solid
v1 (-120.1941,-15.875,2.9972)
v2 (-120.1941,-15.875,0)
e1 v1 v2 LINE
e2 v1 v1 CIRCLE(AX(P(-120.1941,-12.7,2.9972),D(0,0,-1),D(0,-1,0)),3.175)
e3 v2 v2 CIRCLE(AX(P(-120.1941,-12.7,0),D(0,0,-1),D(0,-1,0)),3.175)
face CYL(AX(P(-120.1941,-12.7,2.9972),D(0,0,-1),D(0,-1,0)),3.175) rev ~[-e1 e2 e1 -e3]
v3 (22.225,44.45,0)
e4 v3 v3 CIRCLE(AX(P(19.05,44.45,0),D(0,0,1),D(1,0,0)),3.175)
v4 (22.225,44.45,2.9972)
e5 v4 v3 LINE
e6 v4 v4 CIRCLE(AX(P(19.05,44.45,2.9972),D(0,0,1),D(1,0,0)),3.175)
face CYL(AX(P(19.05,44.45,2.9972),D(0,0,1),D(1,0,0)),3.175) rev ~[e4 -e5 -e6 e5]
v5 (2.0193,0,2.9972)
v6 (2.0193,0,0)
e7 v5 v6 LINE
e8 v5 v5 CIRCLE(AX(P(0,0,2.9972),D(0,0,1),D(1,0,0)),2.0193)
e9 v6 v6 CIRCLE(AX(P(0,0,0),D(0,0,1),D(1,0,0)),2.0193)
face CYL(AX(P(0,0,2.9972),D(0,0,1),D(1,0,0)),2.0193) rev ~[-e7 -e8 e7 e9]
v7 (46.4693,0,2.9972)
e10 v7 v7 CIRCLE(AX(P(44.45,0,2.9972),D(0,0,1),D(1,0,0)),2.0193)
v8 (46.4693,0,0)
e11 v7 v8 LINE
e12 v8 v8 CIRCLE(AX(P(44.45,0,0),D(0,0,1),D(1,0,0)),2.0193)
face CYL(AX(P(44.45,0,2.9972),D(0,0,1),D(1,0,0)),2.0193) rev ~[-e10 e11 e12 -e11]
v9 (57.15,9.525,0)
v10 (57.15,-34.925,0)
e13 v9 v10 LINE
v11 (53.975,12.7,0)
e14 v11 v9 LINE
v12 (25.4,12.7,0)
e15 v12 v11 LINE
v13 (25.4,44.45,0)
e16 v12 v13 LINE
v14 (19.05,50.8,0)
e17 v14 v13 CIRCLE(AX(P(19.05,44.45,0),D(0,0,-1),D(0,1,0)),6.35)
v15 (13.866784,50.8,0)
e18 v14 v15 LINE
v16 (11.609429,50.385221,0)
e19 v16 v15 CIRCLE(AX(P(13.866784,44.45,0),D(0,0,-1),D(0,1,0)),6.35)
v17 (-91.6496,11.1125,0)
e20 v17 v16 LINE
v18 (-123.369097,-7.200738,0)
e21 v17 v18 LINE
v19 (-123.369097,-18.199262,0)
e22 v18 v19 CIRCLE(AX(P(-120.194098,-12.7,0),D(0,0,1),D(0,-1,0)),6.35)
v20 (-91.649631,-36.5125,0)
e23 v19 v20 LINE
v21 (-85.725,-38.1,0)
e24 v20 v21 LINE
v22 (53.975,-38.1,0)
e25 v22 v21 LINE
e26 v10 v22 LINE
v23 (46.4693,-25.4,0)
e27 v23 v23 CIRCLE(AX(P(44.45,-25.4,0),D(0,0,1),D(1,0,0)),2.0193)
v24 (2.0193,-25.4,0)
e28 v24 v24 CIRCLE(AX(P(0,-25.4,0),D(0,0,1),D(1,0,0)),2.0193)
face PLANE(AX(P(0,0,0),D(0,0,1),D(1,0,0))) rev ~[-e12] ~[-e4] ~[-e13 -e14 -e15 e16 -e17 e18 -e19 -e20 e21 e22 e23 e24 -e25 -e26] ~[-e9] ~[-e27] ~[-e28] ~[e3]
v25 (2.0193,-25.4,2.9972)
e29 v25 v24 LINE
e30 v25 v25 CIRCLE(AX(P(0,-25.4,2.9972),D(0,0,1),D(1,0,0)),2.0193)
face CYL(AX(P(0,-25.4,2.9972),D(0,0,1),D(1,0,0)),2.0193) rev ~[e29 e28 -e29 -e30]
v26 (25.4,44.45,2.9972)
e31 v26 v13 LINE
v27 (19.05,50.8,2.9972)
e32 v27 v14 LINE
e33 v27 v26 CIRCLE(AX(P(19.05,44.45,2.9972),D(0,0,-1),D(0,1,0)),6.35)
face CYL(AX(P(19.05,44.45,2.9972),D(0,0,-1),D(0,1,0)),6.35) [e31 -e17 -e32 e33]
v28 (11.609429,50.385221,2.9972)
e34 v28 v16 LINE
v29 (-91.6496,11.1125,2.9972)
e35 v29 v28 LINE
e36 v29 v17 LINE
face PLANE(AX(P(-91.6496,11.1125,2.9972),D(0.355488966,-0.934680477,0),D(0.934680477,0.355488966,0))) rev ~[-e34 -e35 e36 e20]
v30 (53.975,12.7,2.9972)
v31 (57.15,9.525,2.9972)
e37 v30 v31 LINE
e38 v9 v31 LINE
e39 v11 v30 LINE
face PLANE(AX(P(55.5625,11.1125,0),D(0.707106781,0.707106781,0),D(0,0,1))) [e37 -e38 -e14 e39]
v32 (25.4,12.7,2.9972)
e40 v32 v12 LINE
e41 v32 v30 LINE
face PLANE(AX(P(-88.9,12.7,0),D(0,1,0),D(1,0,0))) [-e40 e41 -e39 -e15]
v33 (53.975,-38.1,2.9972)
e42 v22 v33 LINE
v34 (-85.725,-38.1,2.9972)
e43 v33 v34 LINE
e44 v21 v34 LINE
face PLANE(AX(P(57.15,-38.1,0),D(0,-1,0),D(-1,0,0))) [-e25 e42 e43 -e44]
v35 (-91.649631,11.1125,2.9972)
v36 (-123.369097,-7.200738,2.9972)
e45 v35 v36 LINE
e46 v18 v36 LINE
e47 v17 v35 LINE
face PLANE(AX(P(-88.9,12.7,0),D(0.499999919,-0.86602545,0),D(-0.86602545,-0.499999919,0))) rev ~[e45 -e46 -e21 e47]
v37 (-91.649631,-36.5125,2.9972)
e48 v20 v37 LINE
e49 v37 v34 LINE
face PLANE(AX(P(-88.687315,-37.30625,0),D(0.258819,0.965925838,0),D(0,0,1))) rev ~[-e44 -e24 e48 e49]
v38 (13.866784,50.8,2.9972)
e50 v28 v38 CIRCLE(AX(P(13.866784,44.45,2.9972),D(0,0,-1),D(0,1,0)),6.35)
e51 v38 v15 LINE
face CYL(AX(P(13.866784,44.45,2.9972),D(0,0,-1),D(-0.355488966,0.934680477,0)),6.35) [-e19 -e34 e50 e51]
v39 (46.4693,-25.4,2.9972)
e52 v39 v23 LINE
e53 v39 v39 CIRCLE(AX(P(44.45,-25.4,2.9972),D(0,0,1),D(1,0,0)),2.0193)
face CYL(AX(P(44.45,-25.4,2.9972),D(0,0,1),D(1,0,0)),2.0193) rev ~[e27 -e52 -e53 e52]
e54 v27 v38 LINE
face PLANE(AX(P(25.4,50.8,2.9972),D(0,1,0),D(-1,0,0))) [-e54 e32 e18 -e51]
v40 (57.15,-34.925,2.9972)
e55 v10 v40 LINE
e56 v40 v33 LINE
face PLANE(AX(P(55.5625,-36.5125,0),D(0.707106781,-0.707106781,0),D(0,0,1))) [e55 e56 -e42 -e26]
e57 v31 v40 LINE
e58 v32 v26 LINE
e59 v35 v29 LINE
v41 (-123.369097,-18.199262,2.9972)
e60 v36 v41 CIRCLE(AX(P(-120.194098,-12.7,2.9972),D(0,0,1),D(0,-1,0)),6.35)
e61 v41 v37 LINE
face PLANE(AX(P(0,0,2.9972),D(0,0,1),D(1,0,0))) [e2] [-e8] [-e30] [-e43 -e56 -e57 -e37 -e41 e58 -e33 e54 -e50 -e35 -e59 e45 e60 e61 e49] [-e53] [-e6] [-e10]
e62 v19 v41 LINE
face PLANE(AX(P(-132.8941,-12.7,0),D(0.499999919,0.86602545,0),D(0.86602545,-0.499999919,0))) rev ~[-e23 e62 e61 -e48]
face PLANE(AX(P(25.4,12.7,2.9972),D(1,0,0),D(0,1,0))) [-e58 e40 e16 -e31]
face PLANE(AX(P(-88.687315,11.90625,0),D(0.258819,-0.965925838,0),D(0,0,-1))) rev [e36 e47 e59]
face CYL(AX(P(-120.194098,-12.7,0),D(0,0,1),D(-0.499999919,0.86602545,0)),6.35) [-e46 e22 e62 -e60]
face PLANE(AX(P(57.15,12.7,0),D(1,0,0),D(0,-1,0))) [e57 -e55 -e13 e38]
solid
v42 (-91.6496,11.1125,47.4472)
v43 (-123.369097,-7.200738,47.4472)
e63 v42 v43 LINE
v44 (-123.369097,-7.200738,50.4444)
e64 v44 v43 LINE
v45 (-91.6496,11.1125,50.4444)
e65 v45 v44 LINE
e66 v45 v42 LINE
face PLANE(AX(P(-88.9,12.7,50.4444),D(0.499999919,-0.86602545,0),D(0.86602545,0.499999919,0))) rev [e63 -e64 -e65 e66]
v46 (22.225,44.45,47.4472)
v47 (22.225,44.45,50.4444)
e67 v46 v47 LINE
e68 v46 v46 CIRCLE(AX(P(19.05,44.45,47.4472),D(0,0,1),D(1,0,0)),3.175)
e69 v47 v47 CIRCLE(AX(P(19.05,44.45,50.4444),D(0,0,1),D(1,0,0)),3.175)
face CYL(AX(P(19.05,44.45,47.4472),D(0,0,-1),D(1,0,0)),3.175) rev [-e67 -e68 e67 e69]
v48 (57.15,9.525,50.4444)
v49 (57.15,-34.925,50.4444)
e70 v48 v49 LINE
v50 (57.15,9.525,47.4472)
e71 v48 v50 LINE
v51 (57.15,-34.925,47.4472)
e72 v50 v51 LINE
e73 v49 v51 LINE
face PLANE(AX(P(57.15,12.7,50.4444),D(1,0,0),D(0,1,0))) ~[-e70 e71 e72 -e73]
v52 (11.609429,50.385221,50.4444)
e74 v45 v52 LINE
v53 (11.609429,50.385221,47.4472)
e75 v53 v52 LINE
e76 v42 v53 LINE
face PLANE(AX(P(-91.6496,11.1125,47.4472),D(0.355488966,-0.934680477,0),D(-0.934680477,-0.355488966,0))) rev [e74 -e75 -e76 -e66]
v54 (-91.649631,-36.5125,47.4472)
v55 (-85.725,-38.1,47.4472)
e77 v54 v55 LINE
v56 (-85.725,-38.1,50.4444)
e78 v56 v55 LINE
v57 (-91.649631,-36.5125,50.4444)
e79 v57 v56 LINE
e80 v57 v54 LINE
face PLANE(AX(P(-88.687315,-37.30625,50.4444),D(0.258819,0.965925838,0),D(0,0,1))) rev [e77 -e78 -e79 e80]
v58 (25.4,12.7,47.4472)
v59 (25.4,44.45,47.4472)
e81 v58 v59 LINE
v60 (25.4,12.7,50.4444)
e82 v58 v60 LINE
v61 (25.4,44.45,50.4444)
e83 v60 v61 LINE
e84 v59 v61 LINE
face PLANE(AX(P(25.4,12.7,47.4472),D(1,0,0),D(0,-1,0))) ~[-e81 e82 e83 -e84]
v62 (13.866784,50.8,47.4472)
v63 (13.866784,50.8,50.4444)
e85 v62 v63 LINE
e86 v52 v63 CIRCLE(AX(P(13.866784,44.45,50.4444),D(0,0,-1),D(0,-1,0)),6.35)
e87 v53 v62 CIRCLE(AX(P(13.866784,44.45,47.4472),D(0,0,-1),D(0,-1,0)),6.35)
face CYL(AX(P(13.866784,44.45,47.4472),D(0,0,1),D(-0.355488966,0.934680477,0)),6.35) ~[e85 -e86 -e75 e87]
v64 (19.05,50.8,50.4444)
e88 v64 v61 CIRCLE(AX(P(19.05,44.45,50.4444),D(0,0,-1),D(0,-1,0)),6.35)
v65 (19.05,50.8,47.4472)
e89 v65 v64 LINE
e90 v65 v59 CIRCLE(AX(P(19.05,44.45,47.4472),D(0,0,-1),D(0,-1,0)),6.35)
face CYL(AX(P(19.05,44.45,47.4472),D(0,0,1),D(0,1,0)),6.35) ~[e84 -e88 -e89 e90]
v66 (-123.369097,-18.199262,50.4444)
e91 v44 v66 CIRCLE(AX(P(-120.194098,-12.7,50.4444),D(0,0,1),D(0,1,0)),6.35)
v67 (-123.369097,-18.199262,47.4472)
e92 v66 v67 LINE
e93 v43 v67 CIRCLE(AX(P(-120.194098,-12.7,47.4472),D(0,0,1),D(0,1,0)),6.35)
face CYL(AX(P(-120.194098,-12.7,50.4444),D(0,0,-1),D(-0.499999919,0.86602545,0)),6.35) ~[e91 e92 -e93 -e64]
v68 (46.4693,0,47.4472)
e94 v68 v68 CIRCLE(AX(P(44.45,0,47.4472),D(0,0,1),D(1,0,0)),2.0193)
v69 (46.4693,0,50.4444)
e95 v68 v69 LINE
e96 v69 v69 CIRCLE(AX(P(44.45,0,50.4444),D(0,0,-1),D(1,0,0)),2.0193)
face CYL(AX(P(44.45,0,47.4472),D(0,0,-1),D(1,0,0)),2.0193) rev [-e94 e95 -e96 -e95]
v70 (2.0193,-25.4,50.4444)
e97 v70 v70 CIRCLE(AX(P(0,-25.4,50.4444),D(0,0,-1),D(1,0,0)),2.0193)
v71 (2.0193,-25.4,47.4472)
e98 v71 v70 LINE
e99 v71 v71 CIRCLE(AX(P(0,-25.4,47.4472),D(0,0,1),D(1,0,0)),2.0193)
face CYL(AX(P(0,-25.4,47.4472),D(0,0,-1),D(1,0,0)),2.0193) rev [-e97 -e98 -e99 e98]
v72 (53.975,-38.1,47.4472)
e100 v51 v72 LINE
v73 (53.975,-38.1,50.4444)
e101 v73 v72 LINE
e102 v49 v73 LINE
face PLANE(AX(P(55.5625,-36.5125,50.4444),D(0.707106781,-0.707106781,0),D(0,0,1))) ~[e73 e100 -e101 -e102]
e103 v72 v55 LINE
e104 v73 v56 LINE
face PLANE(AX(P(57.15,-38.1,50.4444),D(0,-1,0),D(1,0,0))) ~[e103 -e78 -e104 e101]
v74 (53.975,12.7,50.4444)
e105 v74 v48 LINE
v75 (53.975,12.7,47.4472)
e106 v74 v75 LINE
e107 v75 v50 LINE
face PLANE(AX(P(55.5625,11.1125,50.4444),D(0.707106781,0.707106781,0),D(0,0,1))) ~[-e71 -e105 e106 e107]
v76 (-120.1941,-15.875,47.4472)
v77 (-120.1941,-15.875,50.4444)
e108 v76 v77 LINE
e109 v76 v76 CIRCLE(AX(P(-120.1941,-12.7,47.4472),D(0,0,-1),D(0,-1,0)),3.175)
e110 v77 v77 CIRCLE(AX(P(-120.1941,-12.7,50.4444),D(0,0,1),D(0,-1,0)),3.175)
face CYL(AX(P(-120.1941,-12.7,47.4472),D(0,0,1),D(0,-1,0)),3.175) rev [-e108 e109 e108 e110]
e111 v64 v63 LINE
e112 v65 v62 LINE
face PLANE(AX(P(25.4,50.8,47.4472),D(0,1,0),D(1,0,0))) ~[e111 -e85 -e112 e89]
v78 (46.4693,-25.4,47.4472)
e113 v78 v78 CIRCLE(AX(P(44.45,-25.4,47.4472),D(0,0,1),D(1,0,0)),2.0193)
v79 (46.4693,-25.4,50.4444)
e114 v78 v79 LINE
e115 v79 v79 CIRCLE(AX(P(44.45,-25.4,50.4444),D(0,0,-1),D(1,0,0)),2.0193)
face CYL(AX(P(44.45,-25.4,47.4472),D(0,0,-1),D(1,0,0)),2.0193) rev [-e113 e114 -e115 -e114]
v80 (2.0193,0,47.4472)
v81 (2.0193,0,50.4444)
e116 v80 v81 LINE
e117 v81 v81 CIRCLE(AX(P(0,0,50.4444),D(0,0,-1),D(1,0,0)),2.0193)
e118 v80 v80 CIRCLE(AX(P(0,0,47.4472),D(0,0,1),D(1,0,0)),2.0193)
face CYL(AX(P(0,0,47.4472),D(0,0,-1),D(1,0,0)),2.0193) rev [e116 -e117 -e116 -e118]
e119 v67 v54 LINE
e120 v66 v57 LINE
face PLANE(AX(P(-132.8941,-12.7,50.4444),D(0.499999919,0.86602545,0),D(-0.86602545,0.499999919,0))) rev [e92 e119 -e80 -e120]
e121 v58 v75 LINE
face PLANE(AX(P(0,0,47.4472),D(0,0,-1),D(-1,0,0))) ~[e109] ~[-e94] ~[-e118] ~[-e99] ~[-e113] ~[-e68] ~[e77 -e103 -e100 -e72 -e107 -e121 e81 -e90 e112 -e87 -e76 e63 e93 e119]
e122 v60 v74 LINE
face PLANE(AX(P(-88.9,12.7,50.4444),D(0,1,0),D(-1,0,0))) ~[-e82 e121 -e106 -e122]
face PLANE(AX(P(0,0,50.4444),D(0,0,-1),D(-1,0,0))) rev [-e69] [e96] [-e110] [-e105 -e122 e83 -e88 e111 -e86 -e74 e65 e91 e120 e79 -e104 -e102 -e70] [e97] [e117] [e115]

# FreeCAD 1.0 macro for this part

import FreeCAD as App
import Part
import Sketcher
from FreeCAD import Vector
Q = App.Units.Quantity


def edges_at(feature, points):
    """Names of the edges that pass closest to the given points."""
    edges = feature.Shape.Edges
    near = lambda p: min(range(len(edges)), key=lambda i: edges[i].distToShape(Part.Vertex(*p))[0])
    return sorted({f"Edge{near(p) + 1}" for p in points})


def add_polygon(sketch, points):
    """Adds a closed chain of lines whose ends are joined by coincident constraints."""
    first, n = sketch.GeometryCount, len(points)
    for a, b in zip(points, points[1:] + points[:1]):
        sketch.addGeometry(Part.LineSegment(App.Vector(*a, 0), App.Vector(*b, 0)), False)
    for i in range(n):
        sketch.addConstraint(Sketcher.Constraint("Coincident", first + i, 2, first + (i + 1) % n, 1))

doc = App.newDocument("Part")
params = doc.addObject("Spreadsheet::Sheet", "Params")
for row, (alias, value) in enumerate([
    ("sketch1_height", "2 in"),
    ("sketch1_length", "2 in"),
    ("sketch1_width", "5.75 in"),
    ("pad1_length", "0.118 in"),
    ("sketch2_diameter", "0.159 in"),
    ("fillet_radius", "0.25 in"),
    ("chamfer_size", "0.125 in"),
    ("sketch3_diameter", "0.25 in"),
    ("hole_diameter", "0.25 in"),
    ("sketch4_diameter", "0.25 in"),
    ("sketch4_width", "0.5 in"),
    ("sketch4_height", "1.5 in"),
    ("pad2_length", "0.118 in"),
    ("fillet2_radius", "0.25 in"),
], start=1):
    params.set(f"A{row}", alias)
    params.set(f"B{row}", "=" + value)
    params.setAlias(f"B{row}", alias)

body = doc.addObject("PartDesign::Body", "Body")
body.AllowCompound = True

sketch1 = doc.addObject("Sketcher::SketchObject", "Sketch")
body.addObject(sketch1)
sketch1.AttachmentSupport = (doc.XY_Plane, [""])
sketch1.MapMode = "FlatFace"
add_polygon(sketch1, [(57, 13), (-89, 13), (-133, -13), (-89, -38), (57, -38)])
sketch1.addConstraint([
    Sketcher.Constraint("Horizontal", 0),
    Sketcher.Constraint("Horizontal", 3),
    Sketcher.Constraint("Vertical", 4),
    Sketcher.Constraint("Vertical", 0, 2, 2, 2),
    Sketcher.Constraint("Equal", 1, 2),
    Sketcher.Constraint("DistanceY", 4, 1, 4, 2, Q("2 in")),
    Sketcher.Constraint("Distance", 1, Q("2 in")),
    Sketcher.Constraint("DistanceX", 0, 2, 0, 1, Q("5.75 in")),
    Sketcher.Constraint("DistanceY", -1, 1, 0, 2, Q("0.5 in")),
    Sketcher.Constraint("DistanceX", 0, 2, -1, 1, Q("3.5 in")),
])
sketch1.setExpression("Constraints[10]", "Params.sketch1_height")
sketch1.setExpression("Constraints[11]", "Params.sketch1_length")
sketch1.setExpression("Constraints[12]", "Params.sketch1_width")
pad1 = doc.addObject("PartDesign::Pad", "Pad")
body.addObject(pad1)
pad1.Profile = sketch1
pad1.setExpression("Length", "Params.pad1_length")

sketch2 = doc.addObject("Sketcher::SketchObject", "Sketch001")
body.addObject(sketch2)
sketch2.AttachmentSupport = (doc.XY_Plane, [""])
sketch2.MapMode = "FlatFace"
sketch2.AttachmentOffset = App.Placement(Vector(0, 0, 0.118 * 25.4), App.Rotation())
sketch2.addGeometry([
    Part.Circle(Vector(0, 0, 0), Vector(0, 0, 1), 2),
    Part.Circle(Vector(44.5, 0, 0), Vector(0, 0, 1), 2),
    Part.Circle(Vector(44.5, -25.4, 0), Vector(0, 0, 1), 2),
    Part.Circle(Vector(0, -25.4, 0), Vector(0, 0, 1), 2),
], False)
sketch2.addConstraint([
    Sketcher.Constraint("Coincident", 0, 3, -1, 1),
    Sketcher.Constraint("Equal", 0, 1),
    Sketcher.Constraint("Equal", 1, 2),
    Sketcher.Constraint("Equal", 2, 3),
    Sketcher.Constraint("PointOnObject", 1, 3, -1),
    Sketcher.Constraint("PointOnObject", 3, 3, -2),
    Sketcher.Constraint("Horizontal", 2, 3, 3, 3),
    Sketcher.Constraint("Vertical", 1, 3, 2, 3),
    Sketcher.Constraint("Diameter", 0, Q("0.159 in")),
    Sketcher.Constraint("DistanceY", 2, 3, -1, 1, Q("1 in")),
    Sketcher.Constraint("DistanceX", -1, 1, 1, 3, Q("1.75 in")),
])
sketch2.setExpression("Constraints[8]", "Params.sketch2_diameter")
pocket1 = doc.addObject("PartDesign::Pocket", "Pocket")
body.addObject(pocket1)
pocket1.Profile = sketch2
pocket1.Type = "ThroughAll"
doc.recompute()

fillet = doc.addObject("PartDesign::Fillet", "Fillet")
body.addObject(fillet)
fillet.Base = (pocket1, edges_at(pocket1, [(-132.894, -12.7, 1.499)]))
fillet.setExpression("Radius", "Params.fillet_radius")
doc.recompute()

chamfer = doc.addObject("PartDesign::Chamfer", "Chamfer")
body.addObject(chamfer)
chamfer.Base = (fillet, edges_at(fillet, [
    (57.15, 12.7, 1.499),
    (57.15, -38.1, 1.499),
    (-88.9, 12.7, 1.499),
    (-88.9, -38.1, 1.499),
]))
chamfer.setExpression("Size", "Params.chamfer_size")

sketch3 = doc.addObject("Sketcher::SketchObject", "Sketch002")
body.addObject(sketch3)
sketch3.AttachmentSupport = (doc.XY_Plane, [""])
sketch3.MapMode = "FlatFace"
sketch3.AttachmentOffset = App.Placement(Vector(0, 0, 0.118 * 25.4), App.Rotation())
sketch3.addGeometry(Part.Circle(Vector(-120.2, -12.7, 0), Vector(0, 0, 1), 3.2), False)
sketch3.addConstraint([
    Sketcher.Constraint("Diameter", 0, Q("0.25 in")),
    Sketcher.Constraint("DistanceY", 0, 3, -1, 1, Q("0.5 in")),
    Sketcher.Constraint("DistanceX", 0, 3, -1, 1, 120.194),
])
sketch3.setExpression("Constraints[0]", "Params.sketch3_diameter")
doc.recompute()
hole = doc.addObject("PartDesign::Hole", "Hole")
body.addObject(hole)
hole.Profile = sketch3
hole.ThreadType = "None"
hole.setExpression("Diameter", "Params.hole_diameter")
hole.DepthType = "ThroughAll"

sketch4 = doc.addObject("Sketcher::SketchObject", "Sketch003")
body.addObject(sketch4)
sketch4.AttachmentSupport = (doc.XY_Plane, [""])
sketch4.MapMode = "FlatFace"
sketch4.AttachmentOffset = App.Placement(Vector(0, 0, 0.118 * 25.4), App.Rotation())
add_polygon(sketch4, [(12.7, 12.7), (25.4, 12.7), (25.4, 50.8), (12.7, 50.8), (-91.6, 11.1)])
sketch4.addGeometry(Part.Circle(Vector(19.1, 44.5, 0), Vector(0, 0, 1), 3.2), False)
sketch4.addConstraint([
    Sketcher.Constraint("Horizontal", 0),
    Sketcher.Constraint("Vertical", 1),
    Sketcher.Constraint("Horizontal", 2),
    Sketcher.Constraint("Vertical", 2, 2, 4, 2),
    Sketcher.Constraint("Diameter", 5, Q("0.25 in")),
    Sketcher.Constraint("DistanceX", 0, 1, 0, 2, Q("0.5 in")),
    Sketcher.Constraint("DistanceY", 1, 1, 1, 2, Q("1.5 in")),
    Sketcher.Constraint("DistanceY", -1, 1, 0, 2, Q("0.5 in")),
    Sketcher.Constraint("DistanceX", -1, 1, 2, 2, Q("0.5 in")),
    Sketcher.Constraint("DistanceX", 5, 3, 0, 2, Q("0.25 in")),
    Sketcher.Constraint("DistanceY", 0, 2, 5, 3, Q("1.25 in")),
    Sketcher.Constraint("DistanceY", -1, 1, 3, 2, Q("0.4375 in")),
    Sketcher.Constraint("Distance", 3, 111.642),
])
sketch4.setExpression("Constraints[9]", "Params.sketch4_diameter")
sketch4.setExpression("Constraints[10]", "Params.sketch4_width")
sketch4.setExpression("Constraints[11]", "Params.sketch4_height")
pad2 = doc.addObject("PartDesign::Pad", "Pad001")
body.addObject(pad2)
pad2.Profile = sketch4
pad2.setExpression("Length", "Params.pad2_length")
pad2.Reversed = True
doc.recompute()

fillet2 = doc.addObject("PartDesign::Fillet", "Fillet001")
body.addObject(fillet2)
fillet2.Base = (pad2, edges_at(pad2, [(25.4, 50.8, 1.499), (12.7, 50.8, 1.499)]))
fillet2.setExpression("Radius", "Params.fillet2_radius")
doc.recompute()

datumplane = doc.addObject("PartDesign::Plane", "DatumPlane")
body.addObject(datumplane)
datumplane.AttachmentSupport = (doc.XY_Plane, [""])
datumplane.MapMode = "FlatFace"
datumplane.AttachmentOffset = App.Placement(Vector(0, 0, 0.993 * 25.4), App.Rotation())
mirrored = doc.addObject("PartDesign::Mirrored", "Mirrored")
body.addObject(mirrored)
mirrored.Originals = [pad1, pocket1, fillet, chamfer, hole, pad2, fillet2]
mirrored.MirrorPlane = (datumplane, [""])
body.Tip = mirrored

doc.recompute()
